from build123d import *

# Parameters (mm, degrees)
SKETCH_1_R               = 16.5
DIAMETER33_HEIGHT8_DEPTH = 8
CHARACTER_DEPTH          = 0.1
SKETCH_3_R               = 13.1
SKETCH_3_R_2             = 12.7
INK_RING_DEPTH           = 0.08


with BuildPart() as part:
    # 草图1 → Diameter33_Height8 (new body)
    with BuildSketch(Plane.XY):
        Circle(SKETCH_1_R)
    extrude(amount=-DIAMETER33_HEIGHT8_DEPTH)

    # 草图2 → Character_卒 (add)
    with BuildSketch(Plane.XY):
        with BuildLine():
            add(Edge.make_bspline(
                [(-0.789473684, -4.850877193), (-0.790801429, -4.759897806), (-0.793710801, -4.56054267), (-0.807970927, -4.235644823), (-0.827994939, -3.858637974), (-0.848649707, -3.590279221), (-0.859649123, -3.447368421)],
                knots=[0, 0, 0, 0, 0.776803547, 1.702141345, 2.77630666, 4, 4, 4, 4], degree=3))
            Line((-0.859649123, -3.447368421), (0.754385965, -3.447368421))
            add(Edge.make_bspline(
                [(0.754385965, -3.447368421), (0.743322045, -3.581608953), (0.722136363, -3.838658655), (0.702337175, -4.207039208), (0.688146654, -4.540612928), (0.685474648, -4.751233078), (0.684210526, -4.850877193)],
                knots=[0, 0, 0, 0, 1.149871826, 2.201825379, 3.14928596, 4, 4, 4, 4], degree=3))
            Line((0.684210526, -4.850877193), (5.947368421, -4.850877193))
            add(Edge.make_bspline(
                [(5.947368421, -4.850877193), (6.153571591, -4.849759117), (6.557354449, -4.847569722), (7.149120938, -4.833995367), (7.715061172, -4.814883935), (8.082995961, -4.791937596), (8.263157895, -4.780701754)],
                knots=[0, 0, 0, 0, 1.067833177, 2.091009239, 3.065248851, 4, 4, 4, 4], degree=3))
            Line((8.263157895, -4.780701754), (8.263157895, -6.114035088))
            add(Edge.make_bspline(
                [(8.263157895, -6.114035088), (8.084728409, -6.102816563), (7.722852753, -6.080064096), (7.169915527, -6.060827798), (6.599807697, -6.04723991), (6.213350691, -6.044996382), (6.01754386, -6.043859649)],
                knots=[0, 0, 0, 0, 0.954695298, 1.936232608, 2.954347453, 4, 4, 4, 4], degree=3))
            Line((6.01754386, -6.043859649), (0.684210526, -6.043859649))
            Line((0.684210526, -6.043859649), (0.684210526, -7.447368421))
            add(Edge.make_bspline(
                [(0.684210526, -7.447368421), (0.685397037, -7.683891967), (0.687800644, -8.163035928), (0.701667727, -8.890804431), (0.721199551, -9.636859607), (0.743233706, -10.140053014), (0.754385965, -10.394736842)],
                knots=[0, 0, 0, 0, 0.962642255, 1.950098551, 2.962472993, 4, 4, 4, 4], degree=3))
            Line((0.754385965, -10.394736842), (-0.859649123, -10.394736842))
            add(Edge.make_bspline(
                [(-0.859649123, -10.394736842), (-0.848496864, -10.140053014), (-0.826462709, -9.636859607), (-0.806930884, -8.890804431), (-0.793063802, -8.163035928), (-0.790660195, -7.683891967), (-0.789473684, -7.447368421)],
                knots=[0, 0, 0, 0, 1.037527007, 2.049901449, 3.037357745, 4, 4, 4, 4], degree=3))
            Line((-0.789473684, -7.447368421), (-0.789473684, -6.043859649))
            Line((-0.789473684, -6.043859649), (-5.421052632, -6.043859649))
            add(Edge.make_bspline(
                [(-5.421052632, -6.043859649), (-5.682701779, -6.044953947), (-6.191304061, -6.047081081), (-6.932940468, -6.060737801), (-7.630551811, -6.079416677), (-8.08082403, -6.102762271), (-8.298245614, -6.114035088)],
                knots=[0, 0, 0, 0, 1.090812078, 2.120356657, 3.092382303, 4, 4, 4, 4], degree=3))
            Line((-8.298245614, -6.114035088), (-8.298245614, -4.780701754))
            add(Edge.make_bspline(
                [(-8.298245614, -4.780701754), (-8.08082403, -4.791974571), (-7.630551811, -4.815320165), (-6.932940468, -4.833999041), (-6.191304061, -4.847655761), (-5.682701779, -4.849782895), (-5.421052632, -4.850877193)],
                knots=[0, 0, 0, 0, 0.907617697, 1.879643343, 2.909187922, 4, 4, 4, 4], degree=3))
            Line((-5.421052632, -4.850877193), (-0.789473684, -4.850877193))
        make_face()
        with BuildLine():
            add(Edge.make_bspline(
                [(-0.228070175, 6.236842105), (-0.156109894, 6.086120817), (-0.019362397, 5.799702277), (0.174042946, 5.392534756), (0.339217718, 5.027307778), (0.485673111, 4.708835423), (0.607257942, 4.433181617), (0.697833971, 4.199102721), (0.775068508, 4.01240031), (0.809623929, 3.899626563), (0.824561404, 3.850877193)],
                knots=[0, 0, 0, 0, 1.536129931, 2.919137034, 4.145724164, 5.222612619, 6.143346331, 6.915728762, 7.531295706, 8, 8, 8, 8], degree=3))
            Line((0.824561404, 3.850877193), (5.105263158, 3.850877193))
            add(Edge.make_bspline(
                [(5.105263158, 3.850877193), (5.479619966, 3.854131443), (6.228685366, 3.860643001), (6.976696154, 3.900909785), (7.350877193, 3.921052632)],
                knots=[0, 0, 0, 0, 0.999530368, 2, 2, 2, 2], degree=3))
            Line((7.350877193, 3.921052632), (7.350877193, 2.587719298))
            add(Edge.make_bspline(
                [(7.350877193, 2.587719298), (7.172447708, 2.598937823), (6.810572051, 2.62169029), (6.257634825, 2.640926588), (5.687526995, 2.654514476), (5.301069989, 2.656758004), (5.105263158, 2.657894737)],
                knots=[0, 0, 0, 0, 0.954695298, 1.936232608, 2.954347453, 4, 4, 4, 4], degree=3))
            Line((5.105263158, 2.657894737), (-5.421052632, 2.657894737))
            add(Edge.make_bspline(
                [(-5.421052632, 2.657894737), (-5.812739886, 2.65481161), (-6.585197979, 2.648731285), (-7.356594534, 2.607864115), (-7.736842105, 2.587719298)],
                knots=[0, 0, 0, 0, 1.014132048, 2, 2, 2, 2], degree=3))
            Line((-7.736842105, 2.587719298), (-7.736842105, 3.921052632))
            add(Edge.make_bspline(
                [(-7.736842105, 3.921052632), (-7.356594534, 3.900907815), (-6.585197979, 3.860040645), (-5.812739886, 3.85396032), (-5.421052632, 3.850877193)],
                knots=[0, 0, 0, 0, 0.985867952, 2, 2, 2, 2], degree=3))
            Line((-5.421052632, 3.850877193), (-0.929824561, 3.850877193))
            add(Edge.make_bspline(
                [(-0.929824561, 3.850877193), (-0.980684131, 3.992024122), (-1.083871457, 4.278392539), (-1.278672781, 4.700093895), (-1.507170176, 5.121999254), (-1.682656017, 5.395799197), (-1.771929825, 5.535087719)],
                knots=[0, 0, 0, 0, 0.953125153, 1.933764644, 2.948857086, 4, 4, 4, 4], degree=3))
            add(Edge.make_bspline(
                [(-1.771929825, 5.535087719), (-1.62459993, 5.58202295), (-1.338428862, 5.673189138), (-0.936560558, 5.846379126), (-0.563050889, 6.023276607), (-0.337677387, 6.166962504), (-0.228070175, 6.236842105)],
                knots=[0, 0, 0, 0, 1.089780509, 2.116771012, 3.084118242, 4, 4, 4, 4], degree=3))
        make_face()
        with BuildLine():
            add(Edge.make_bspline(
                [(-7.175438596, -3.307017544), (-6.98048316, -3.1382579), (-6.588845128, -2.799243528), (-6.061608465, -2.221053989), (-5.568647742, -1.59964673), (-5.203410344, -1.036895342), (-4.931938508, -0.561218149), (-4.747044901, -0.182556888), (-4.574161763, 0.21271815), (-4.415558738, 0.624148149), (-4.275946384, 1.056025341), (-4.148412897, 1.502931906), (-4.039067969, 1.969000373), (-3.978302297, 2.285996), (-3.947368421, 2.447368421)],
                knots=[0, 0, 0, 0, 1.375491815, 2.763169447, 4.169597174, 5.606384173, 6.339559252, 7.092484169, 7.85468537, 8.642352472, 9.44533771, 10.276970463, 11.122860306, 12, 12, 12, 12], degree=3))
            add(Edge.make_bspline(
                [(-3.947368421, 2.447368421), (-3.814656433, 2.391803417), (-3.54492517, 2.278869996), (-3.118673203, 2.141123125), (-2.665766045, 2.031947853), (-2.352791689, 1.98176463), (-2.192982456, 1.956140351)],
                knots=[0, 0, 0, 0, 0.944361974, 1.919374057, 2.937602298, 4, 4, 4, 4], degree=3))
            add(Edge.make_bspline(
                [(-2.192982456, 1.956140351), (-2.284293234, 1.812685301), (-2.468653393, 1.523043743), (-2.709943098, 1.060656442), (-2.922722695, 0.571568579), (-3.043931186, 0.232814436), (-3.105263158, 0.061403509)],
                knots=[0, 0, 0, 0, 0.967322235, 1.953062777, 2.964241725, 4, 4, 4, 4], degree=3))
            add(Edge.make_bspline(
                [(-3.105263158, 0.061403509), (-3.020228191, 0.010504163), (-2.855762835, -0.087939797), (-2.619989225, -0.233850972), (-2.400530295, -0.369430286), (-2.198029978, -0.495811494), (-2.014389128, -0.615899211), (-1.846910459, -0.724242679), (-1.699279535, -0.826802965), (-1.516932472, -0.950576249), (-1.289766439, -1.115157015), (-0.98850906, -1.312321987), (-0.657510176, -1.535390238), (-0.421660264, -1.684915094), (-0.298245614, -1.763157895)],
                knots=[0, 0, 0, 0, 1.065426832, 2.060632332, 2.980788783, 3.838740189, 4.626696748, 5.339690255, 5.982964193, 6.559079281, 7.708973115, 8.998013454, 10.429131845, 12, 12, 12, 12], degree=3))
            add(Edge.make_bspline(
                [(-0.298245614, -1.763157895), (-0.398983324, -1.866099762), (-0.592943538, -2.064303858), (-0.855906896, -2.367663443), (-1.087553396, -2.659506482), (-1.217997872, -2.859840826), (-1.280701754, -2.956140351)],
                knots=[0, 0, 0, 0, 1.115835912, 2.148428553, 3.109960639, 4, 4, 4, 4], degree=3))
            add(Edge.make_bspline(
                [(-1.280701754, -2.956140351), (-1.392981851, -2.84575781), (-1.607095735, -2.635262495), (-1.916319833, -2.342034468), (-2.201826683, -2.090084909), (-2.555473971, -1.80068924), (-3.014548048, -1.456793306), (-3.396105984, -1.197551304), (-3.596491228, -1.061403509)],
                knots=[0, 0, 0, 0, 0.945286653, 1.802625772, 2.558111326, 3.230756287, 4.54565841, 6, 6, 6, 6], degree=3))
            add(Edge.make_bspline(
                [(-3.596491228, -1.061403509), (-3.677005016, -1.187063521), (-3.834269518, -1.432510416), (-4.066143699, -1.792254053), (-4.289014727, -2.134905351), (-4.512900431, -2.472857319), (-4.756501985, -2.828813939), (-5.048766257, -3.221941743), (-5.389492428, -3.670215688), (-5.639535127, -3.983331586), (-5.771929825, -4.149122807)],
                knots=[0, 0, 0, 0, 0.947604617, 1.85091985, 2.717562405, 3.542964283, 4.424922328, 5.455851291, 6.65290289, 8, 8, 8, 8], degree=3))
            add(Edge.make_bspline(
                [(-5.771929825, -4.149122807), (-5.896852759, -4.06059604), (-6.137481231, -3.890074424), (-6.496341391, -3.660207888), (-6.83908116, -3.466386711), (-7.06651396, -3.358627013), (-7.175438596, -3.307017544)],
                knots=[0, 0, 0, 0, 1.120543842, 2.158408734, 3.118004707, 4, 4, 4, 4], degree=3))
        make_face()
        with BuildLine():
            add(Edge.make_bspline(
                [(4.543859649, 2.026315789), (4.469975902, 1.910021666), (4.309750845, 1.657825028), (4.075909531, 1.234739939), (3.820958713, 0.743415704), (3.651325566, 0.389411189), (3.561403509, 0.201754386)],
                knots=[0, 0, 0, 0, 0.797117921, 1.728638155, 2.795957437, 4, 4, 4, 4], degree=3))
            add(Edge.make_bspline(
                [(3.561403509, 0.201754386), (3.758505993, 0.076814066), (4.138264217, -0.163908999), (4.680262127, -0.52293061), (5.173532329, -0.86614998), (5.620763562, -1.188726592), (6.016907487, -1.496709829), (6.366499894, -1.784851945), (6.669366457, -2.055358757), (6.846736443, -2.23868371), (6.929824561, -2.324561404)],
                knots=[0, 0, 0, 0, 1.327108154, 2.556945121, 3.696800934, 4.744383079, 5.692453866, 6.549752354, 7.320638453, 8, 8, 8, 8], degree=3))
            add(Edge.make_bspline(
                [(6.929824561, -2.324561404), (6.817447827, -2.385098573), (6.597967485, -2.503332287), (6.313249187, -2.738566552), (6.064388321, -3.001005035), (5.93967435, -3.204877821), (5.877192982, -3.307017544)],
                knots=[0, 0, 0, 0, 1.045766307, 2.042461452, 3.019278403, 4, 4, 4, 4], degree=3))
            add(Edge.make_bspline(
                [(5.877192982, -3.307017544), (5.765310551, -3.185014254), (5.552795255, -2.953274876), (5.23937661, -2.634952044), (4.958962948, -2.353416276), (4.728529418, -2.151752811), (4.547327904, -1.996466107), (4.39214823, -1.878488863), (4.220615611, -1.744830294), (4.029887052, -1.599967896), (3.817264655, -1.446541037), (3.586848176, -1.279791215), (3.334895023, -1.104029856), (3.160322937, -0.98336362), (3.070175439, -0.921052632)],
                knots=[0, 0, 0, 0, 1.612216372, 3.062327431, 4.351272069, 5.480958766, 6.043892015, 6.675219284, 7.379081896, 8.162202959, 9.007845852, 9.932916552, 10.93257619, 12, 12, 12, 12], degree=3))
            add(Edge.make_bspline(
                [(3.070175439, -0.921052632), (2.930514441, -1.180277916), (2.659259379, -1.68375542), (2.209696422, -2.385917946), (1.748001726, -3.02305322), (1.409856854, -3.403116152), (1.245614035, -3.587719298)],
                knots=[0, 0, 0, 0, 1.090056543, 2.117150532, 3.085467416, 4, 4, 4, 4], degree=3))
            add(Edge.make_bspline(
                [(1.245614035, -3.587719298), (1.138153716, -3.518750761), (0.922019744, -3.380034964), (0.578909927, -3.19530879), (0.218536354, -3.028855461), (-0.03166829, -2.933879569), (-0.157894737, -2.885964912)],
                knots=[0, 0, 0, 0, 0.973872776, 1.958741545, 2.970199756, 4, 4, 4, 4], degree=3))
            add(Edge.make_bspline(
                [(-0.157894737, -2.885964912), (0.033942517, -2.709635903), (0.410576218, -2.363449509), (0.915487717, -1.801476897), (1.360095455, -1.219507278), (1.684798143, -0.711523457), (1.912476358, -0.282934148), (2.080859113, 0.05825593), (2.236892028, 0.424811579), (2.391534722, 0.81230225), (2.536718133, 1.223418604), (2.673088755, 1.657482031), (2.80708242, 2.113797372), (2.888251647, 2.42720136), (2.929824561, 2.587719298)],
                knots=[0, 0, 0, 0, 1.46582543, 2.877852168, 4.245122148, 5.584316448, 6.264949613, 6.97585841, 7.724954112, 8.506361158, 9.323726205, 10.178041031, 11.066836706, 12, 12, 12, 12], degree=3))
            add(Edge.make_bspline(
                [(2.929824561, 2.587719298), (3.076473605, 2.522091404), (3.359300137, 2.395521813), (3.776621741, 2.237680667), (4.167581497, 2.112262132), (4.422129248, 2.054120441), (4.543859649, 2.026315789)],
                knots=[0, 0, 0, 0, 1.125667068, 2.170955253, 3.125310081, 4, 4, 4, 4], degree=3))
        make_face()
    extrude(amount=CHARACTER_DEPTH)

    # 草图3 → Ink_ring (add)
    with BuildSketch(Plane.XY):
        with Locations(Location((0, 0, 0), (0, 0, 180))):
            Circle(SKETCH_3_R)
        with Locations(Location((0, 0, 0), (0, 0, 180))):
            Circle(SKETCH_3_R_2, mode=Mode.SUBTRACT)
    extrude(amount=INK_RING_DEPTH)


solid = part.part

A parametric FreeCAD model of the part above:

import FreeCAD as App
import Part
import Sketcher

V = App.Vector
Q = App.Units.Quantity

doc = App.newDocument("Part")
body = doc.addObject("PartDesign::Body", "Body")

sketch1 = body.newObject("Sketcher::SketchObject", "Sketch")
sketch1.AttachmentSupport = (doc.getObject("XY_Plane"), [""])
sketch1.MapMode = "FlatFace"
sketch1.addGeometry(Part.Circle(V(0, 0, 0), V(0, 0, 1), 16), False)
sketch1.addConstraint([
    Sketcher.Constraint("Coincident", 0, 3, -1, 1),
    Sketcher.Constraint("Diameter", 0, Q("33 mm")),
])
pad1 = body.newObject("PartDesign::Pad", "Pad")
pad1.Profile = sketch1
pad1.Length = 8
pad1.Reversed = True

sketch2 = body.newObject("Sketcher::SketchObject", "Sketch001")
sketch2.AttachmentSupport = (doc.getObject("XY_Plane"), [""])
sketch2.MapMode = "FlatFace"
sketch2.addGeometry([
    Part.BSplineCurve([V(-0.789474, -4.850877, 0), V(-0.790801, -4.759898, 0), V(-0.793711, -4.560543, 0), V(-0.807971, -4.235645, 0), V(-0.827995, -3.858638, 0), V(-0.84865, -3.590279, 0), V(-0.859649, -3.447368, 0)], [4, 1, 1, 1, 4], [0, 0.776803547, 1.702141345, 2.77630666, 4], False, 3, [1, 1, 1, 1, 1, 1, 1], False),
    Part.LineSegment(V(-0.789474, -4.850877, 0), V(-5.421053, -4.850877, 0)),
    Part.BSplineCurve([V(-8.298246, -4.780702, 0), V(-8.080824, -4.791975, 0), V(-7.630552, -4.81532, 0), V(-6.93294, -4.833999, 0), V(-6.191304, -4.847656, 0), V(-5.682702, -4.849783, 0), V(-5.421053, -4.850877, 0)], [4, 1, 1, 1, 4], [0, 0.907617697, 1.879643343, 2.909187922, 4], False, 3, [1, 1, 1, 1, 1, 1, 1], False),
    Part.LineSegment(V(-8.298246, -4.780702, 0), V(-8.298246, -6.114035, 0)),
    Part.BSplineCurve([V(-5.421053, -6.04386, 0), V(-5.682702, -6.044954, 0), V(-6.191304, -6.047081, 0), V(-6.93294, -6.060738, 0), V(-7.630552, -6.079417, 0), V(-8.080824, -6.102762, 0), V(-8.298246, -6.114035, 0)], [4, 1, 1, 1, 4], [0, 1.090812078, 2.120356657, 3.092382303, 4], False, 3, [1, 1, 1, 1, 1, 1, 1], False),
    Part.LineSegment(V(-5.421053, -6.04386, 0), V(-0.789474, -6.04386, 0)),
    Part.LineSegment(V(-0.789474, -6.04386, 0), V(-0.789474, -7.447368, 0)),
    Part.BSplineCurve([V(-0.859649, -10.394737, 0), V(-0.848497, -10.140053, 0), V(-0.826463, -9.63686, 0), V(-0.806931, -8.890804, 0), V(-0.793064, -8.163036, 0), V(-0.79066, -7.683892, 0), V(-0.789474, -7.447368, 0)], [4, 1, 1, 1, 4], [0, 1.037527007, 2.049901449, 3.037357745, 4], False, 3, [1, 1, 1, 1, 1, 1, 1], False),
    Part.LineSegment(V(-0.859649, -10.394737, 0), V(0.754386, -10.394737, 0)),
    Part.BSplineCurve([V(0.684211, -7.447368, 0), V(0.685397, -7.683892, 0), V(0.687801, -8.163036, 0), V(0.701668, -8.890804, 0), V(0.7212, -9.63686, 0), V(0.743234, -10.140053, 0), V(0.754386, -10.394737, 0)], [4, 1, 1, 1, 4], [0, 0.962642255, 1.950098551, 2.962472993, 4], False, 3, [1, 1, 1, 1, 1, 1, 1], False),
    Part.LineSegment(V(0.684211, -7.447368, 0), V(0.684211, -6.04386, 0)),
    Part.LineSegment(V(0.684211, -6.04386, 0), V(6.017544, -6.04386, 0)),
    Part.BSplineCurve([V(8.263158, -6.114035, 0), V(8.084728, -6.102817, 0), V(7.722853, -6.080064, 0), V(7.169916, -6.060828, 0), V(6.599808, -6.04724, 0), V(6.213351, -6.044996, 0), V(6.017544, -6.04386, 0)], [4, 1, 1, 1, 4], [0, 0.954695298, 1.936232608, 2.954347453, 4], False, 3, [1, 1, 1, 1, 1, 1, 1], False),
    Part.LineSegment(V(8.263158, -6.114035, 0), V(8.263158, -4.780702, 0)),
    Part.BSplineCurve([V(5.947368, -4.850877, 0), V(6.153572, -4.849759, 0), V(6.557354, -4.84757, 0), V(7.149121, -4.833995, 0), V(7.715061, -4.814884, 0), V(8.082996, -4.791938, 0), V(8.263158, -4.780702, 0)], [4, 1, 1, 1, 4], [0, 1.067833177, 2.091009239, 3.065248851, 4], False, 3, [1, 1, 1, 1, 1, 1, 1], False),
    Part.LineSegment(V(5.947368, -4.850877, 0), V(0.684211, -4.850877, 0)),
    Part.BSplineCurve([V(0.754386, -3.447368, 0), V(0.743322, -3.581609, 0), V(0.722136, -3.838659, 0), V(0.702337, -4.207039, 0), V(0.688147, -4.540613, 0), V(0.685475, -4.751233, 0), V(0.684211, -4.850877, 0)], [4, 1, 1, 1, 4], [0, 1.149871826, 2.201825379, 3.14928596, 4], False, 3, [1, 1, 1, 1, 1, 1, 1], False),
    Part.LineSegment(V(0.754386, -3.447368, 0), V(-0.859649, -3.447368, 0)),
    Part.BSplineCurve([V(-0.22807, 6.236842, 0), V(-0.15611, 6.086121, 0), V(-0.019362, 5.799702, 0), V(0.174043, 5.392535, 0), V(0.339218, 5.027308, 0), V(0.485673, 4.708835, 0), V(0.607258, 4.433182, 0), V(0.697834, 4.199103, 0), V(0.775069, 4.0124, 0), V(0.809624, 3.899627, 0), V(0.824561, 3.850877, 0)], [4, 1, 1, 1, 1, 1, 1, 1, 4], [0, 1.536129931, 2.919137034, 4.145724164, 5.222612619, 6.143346331, 6.915728762, 7.531295706, 8], False, 3, [1, 1, 1, 1, 1, 1, 1, 1, 1, 1, 1], False),
    Part.BSplineCurve([V(-1.77193, 5.535088, 0), V(-1.6246, 5.582023, 0), V(-1.338429, 5.673189, 0), V(-0.936561, 5.846379, 0), V(-0.563051, 6.023277, 0), V(-0.337677, 6.166963, 0), V(-0.22807, 6.236842, 0)], [4, 1, 1, 1, 4], [0, 1.089780509, 2.116771012, 3.084118242, 4], False, 3, [1, 1, 1, 1, 1, 1, 1], False),
    Part.BSplineCurve([V(-0.929825, 3.850877, 0), V(-0.980684, 3.992024, 0), V(-1.083871, 4.278393, 0), V(-1.278673, 4.700094, 0), V(-1.50717, 5.121999, 0), V(-1.682656, 5.395799, 0), V(-1.77193, 5.535088, 0)], [4, 1, 1, 1, 4], [0, 0.953125153, 1.933764644, 2.948857086, 4], False, 3, [1, 1, 1, 1, 1, 1, 1], False),
    Part.LineSegment(V(-0.929825, 3.850877, 0), V(-5.421053, 3.850877, 0)),
    Part.BSplineCurve([V(-7.736842, 3.921053, 0), V(-7.356595, 3.900908, 0), V(-6.585198, 3.860041, 0), V(-5.81274, 3.85396, 0), V(-5.421053, 3.850877, 0)], [4, 1, 4], [0, 0.985867952, 2], False, 3, [1, 1, 1, 1, 1], False),
    Part.LineSegment(V(-7.736842, 3.921053, 0), V(-7.736842, 2.587719, 0)),
    Part.BSplineCurve([V(-5.421053, 2.657895, 0), V(-5.81274, 2.654812, 0), V(-6.585198, 2.648731, 0), V(-7.356595, 2.607864, 0), V(-7.736842, 2.587719, 0)], [4, 1, 4], [0, 1.014132048, 2], False, 3, [1, 1, 1, 1, 1], False),
    Part.LineSegment(V(-5.421053, 2.657895, 0), V(5.105263, 2.657895, 0)),
    Part.BSplineCurve([V(7.350877, 2.587719, 0), V(7.172448, 2.598938, 0), V(6.810572, 2.62169, 0), V(6.257635, 2.640927, 0), V(5.687527, 2.654514, 0), V(5.30107, 2.656758, 0), V(5.105263, 2.657895, 0)], [4, 1, 1, 1, 4], [0, 0.954695298, 1.936232608, 2.954347453, 4], False, 3, [1, 1, 1, 1, 1, 1, 1], False),
    Part.LineSegment(V(7.350877, 2.587719, 0), V(7.350877, 3.921053, 0)),
    Part.BSplineCurve([V(5.105263, 3.850877, 0), V(5.47962, 3.854131, 0), V(6.228685, 3.860643, 0), V(6.976696, 3.90091, 0), V(7.350877, 3.921053, 0)], [4, 1, 4], [0, 0.999530368, 2], False, 3, [1, 1, 1, 1, 1], False),
    Part.LineSegment(V(5.105263, 3.850877, 0), V(0.824561, 3.850877, 0)),
    Part.BSplineCurve([V(-7.175439, -3.307018, 0), V(-6.980483, -3.138258, 0), V(-6.588845, -2.799244, 0), V(-6.061608, -2.221054, 0), V(-5.568648, -1.599647, 0), V(-5.20341, -1.036895, 0), V(-4.931939, -0.561218, 0), V(-4.747045, -0.182557, 0), V(-4.574162, 0.212718, 0), V(-4.415559, 0.624148, 0), V(-4.275946, 1.056025, 0), V(-4.148413, 1.502932, 0), V(-4.039068, 1.969, 0), V(-3.978302, 2.285996, 0), V(-3.947368, 2.447368, 0)], [4, 1, 1, 1, 1, 1, 1, 1, 1, 1, 1, 1, 4], [0, 1.375491815, 2.763169447, 4.169597174, 5.606384173, 6.339559252, 7.092484169, 7.85468537, 8.642352472, 9.44533771, 10.276970463, 11.122860306, 12], False, 3, [1, 1, 1, 1, 1, 1, 1, 1, 1, 1, 1, 1, 1, 1, 1], False),
    Part.BSplineCurve([V(-5.77193, -4.149123, 0), V(-5.896853, -4.060596, 0), V(-6.137481, -3.890074, 0), V(-6.496341, -3.660208, 0), V(-6.839081, -3.466387, 0), V(-7.066514, -3.358627, 0), V(-7.175439, -3.307018, 0)], [4, 1, 1, 1, 4], [0, 1.120543842, 2.158408734, 3.118004707, 4], False, 3, [1, 1, 1, 1, 1, 1, 1], False),
    Part.BSplineCurve([V(-3.596491, -1.061404, 0), V(-3.677005, -1.187064, 0), V(-3.83427, -1.43251, 0), V(-4.066144, -1.792254, 0), V(-4.289015, -2.134905, 0), V(-4.5129, -2.472857, 0), V(-4.756502, -2.828814, 0), V(-5.048766, -3.221942, 0), V(-5.389492, -3.670216, 0), V(-5.639535, -3.983332, 0), V(-5.77193, -4.149123, 0)], [4, 1, 1, 1, 1, 1, 1, 1, 4], [0, 0.947604617, 1.85091985, 2.717562405, 3.542964283, 4.424922328, 5.455851291, 6.65290289, 8], False, 3, [1, 1, 1, 1, 1, 1, 1, 1, 1, 1, 1], False),
    Part.BSplineCurve([V(-1.280702, -2.95614, 0), V(-1.392982, -2.845758, 0), V(-1.607096, -2.635262, 0), V(-1.91632, -2.342034, 0), V(-2.201827, -2.090085, 0), V(-2.555474, -1.800689, 0), V(-3.014548, -1.456793, 0), V(-3.396106, -1.197551, 0), V(-3.596491, -1.061404, 0)], [4, 1, 1, 1, 1, 1, 4], [0, 0.945286653, 1.802625772, 2.558111326, 3.230756287, 4.54565841, 6], False, 3, [1, 1, 1, 1, 1, 1, 1, 1, 1], False),
    Part.BSplineCurve([V(-0.298246, -1.763158, 0), V(-0.398983, -1.8661, 0), V(-0.592944, -2.064304, 0), V(-0.855907, -2.367663, 0), V(-1.087553, -2.659506, 0), V(-1.217998, -2.859841, 0), V(-1.280702, -2.95614, 0)], [4, 1, 1, 1, 4], [0, 1.115835912, 2.148428553, 3.109960639, 4], False, 3, [1, 1, 1, 1, 1, 1, 1], False),
    Part.BSplineCurve([V(-3.105263, 0.061404, 0), V(-3.020228, 0.010504, 0), V(-2.855763, -0.08794, 0), V(-2.619989, -0.233851, 0), V(-2.40053, -0.36943, 0), V(-2.19803, -0.495811, 0), V(-2.014389, -0.615899, 0), V(-1.84691, -0.724243, 0), V(-1.69928, -0.826803, 0), V(-1.516932, -0.950576, 0), V(-1.289766, -1.115157, 0), V(-0.988509, -1.312322, 0), V(-0.65751, -1.53539, 0), V(-0.42166, -1.684915, 0), V(-0.298246, -1.763158, 0)], [4, 1, 1, 1, 1, 1, 1, 1, 1, 1, 1, 1, 4], [0, 1.065426832, 2.060632332, 2.980788783, 3.838740189, 4.626696748, 5.339690255, 5.982964193, 6.559079281, 7.708973115, 8.998013454, 10.429131845, 12], False, 3, [1, 1, 1, 1, 1, 1, 1, 1, 1, 1, 1, 1, 1, 1, 1], False),
    Part.BSplineCurve([V(-2.192982, 1.95614, 0), V(-2.284293, 1.812685, 0), V(-2.468653, 1.523044, 0), V(-2.709943, 1.060656, 0), V(-2.922723, 0.571569, 0), V(-3.043931, 0.232814, 0), V(-3.105263, 0.061404, 0)], [4, 1, 1, 1, 4], [0, 0.967322235, 1.953062777, 2.964241725, 4], False, 3, [1, 1, 1, 1, 1, 1, 1], False),
    Part.BSplineCurve([V(-3.947368, 2.447368, 0), V(-3.814656, 2.391803, 0), V(-3.544925, 2.27887, 0), V(-3.118673, 2.141123, 0), V(-2.665766, 2.031948, 0), V(-2.352792, 1.981765, 0), V(-2.192982, 1.95614, 0)], [4, 1, 1, 1, 4], [0, 0.944361974, 1.919374057, 2.937602298, 4], False, 3, [1, 1, 1, 1, 1, 1, 1], False),
    Part.BSplineCurve([V(4.54386, 2.026316, 0), V(4.469976, 1.910022, 0), V(4.309751, 1.657825, 0), V(4.07591, 1.23474, 0), V(3.820959, 0.743416, 0), V(3.651326, 0.389411, 0), V(3.561404, 0.201754, 0)], [4, 1, 1, 1, 4], [0, 0.797117921, 1.728638155, 2.795957437, 4], False, 3, [1, 1, 1, 1, 1, 1, 1], False),
    Part.BSplineCurve([V(2.929825, 2.587719, 0), V(3.076474, 2.522091, 0), V(3.3593, 2.395522, 0), V(3.776622, 2.237681, 0), V(4.167581, 2.112262, 0), V(4.422129, 2.05412, 0), V(4.54386, 2.026316, 0)], [4, 1, 1, 1, 4], [0, 1.125667068, 2.170955253, 3.125310081, 4], False, 3, [1, 1, 1, 1, 1, 1, 1], False),
    Part.BSplineCurve([V(-0.157895, -2.885965, 0), V(0.033943, -2.709636, 0), V(0.410576, -2.36345, 0), V(0.915488, -1.801477, 0), V(1.360095, -1.219507, 0), V(1.684798, -0.711523, 0), V(1.912476, -0.282934, 0), V(2.080859, 0.058256, 0), V(2.236892, 0.424812, 0), V(2.391535, 0.812302, 0), V(2.536718, 1.223419, 0), V(2.673089, 1.657482, 0), V(2.807082, 2.113797, 0), V(2.888252, 2.427201, 0), V(2.929825, 2.587719, 0)], [4, 1, 1, 1, 1, 1, 1, 1, 1, 1, 1, 1, 4], [0, 1.46582543, 2.877852168, 4.245122148, 5.584316448, 6.264949613, 6.97585841, 7.724954112, 8.506361158, 9.323726205, 10.178041031, 11.066836706, 12], False, 3, [1, 1, 1, 1, 1, 1, 1, 1, 1, 1, 1, 1, 1, 1, 1], False),
    Part.BSplineCurve([V(1.245614, -3.587719, 0), V(1.138154, -3.518751, 0), V(0.92202, -3.380035, 0), V(0.57891, -3.195309, 0), V(0.218536, -3.028855, 0), V(-0.031668, -2.93388, 0), V(-0.157895, -2.885965, 0)], [4, 1, 1, 1, 4], [0, 0.973872776, 1.958741545, 2.970199756, 4], False, 3, [1, 1, 1, 1, 1, 1, 1], False),
    Part.BSplineCurve([V(3.070175, -0.921053, 0), V(2.930514, -1.180278, 0), V(2.659259, -1.683755, 0), V(2.209696, -2.385918, 0), V(1.748002, -3.023053, 0), V(1.409857, -3.403116, 0), V(1.245614, -3.587719, 0)], [4, 1, 1, 1, 4], [0, 1.090056543, 2.117150532, 3.085467416, 4], False, 3, [1, 1, 1, 1, 1, 1, 1], False),
    Part.BSplineCurve([V(5.877193, -3.307018, 0), V(5.765311, -3.185014, 0), V(5.552795, -2.953275, 0), V(5.239377, -2.634952, 0), V(4.958963, -2.353416, 0), V(4.728529, -2.151753, 0), V(4.547328, -1.996466, 0), V(4.392148, -1.878489, 0), V(4.220616, -1.74483, 0), V(4.029887, -1.599968, 0), V(3.817265, -1.446541, 0), V(3.586848, -1.279791, 0), V(3.334895, -1.10403, 0), V(3.160323, -0.983364, 0), V(3.070175, -0.921053, 0)], [4, 1, 1, 1, 1, 1, 1, 1, 1, 1, 1, 1, 4], [0, 1.612216372, 3.062327431, 4.351272069, 5.480958766, 6.043892015, 6.675219284, 7.379081896, 8.162202959, 9.007845852, 9.932916552, 10.93257619, 12], False, 3, [1, 1, 1, 1, 1, 1, 1, 1, 1, 1, 1, 1, 1, 1, 1], False),
    Part.BSplineCurve([V(6.929825, -2.324561, 0), V(6.817448, -2.385099, 0), V(6.597967, -2.503332, 0), V(6.313249, -2.738567, 0), V(6.064388, -3.001005, 0), V(5.939674, -3.204878, 0), V(5.877193, -3.307018, 0)], [4, 1, 1, 1, 4], [0, 1.045766307, 2.042461452, 3.019278403, 4], False, 3, [1, 1, 1, 1, 1, 1, 1], False),
    Part.BSplineCurve([V(3.561404, 0.201754, 0), V(3.758506, 0.076814, 0), V(4.138264, -0.163909, 0), V(4.680262, -0.522931, 0), V(5.173532, -0.86615, 0), V(5.620764, -1.188727, 0), V(6.016907, -1.49671, 0), V(6.3665, -1.784852, 0), V(6.669366, -2.055359, 0), V(6.846736, -2.238684, 0), V(6.929825, -2.324561, 0)], [4, 1, 1, 1, 1, 1, 1, 1, 4], [0, 1.327108154, 2.556945121, 3.696800934, 4.744383079, 5.692453866, 6.549752354, 7.320638453, 8], False, 3, [1, 1, 1, 1, 1, 1, 1, 1, 1, 1, 1], False),
], False)
sketch2.addConstraint([
    Sketcher.Constraint("Block", 0),
    Sketcher.Constraint("Block", 2),
    Sketcher.Constraint("Block", 4),
    Sketcher.Constraint("Block", 7),
    Sketcher.Constraint("Block", 9),
    Sketcher.Constraint("Block", 12),
    Sketcher.Constraint("Block", 14),
    Sketcher.Constraint("Block", 16),
    Sketcher.Constraint("Block", 18),
    Sketcher.Constraint("Block", 19),
    Sketcher.Constraint("Block", 20),
    Sketcher.Constraint("Block", 22),
    Sketcher.Constraint("Block", 24),
    Sketcher.Constraint("Block", 26),
    Sketcher.Constraint("Block", 28),
    Sketcher.Constraint("Block", 30),
    Sketcher.Constraint("Block", 31),
    Sketcher.Constraint("Block", 32),
    Sketcher.Constraint("Block", 33),
    Sketcher.Constraint("Block", 34),
    Sketcher.Constraint("Block", 35),
    Sketcher.Constraint("Block", 36),
    Sketcher.Constraint("Block", 37),
    Sketcher.Constraint("Block", 38),
    Sketcher.Constraint("Block", 39),
    Sketcher.Constraint("Block", 40),
    Sketcher.Constraint("Block", 41),
    Sketcher.Constraint("Block", 42),
    Sketcher.Constraint("Block", 43),
    Sketcher.Constraint("Block", 44),
    Sketcher.Constraint("Block", 45),
    Sketcher.Constraint("Coincident", 0, 1, 1, 1),
    Sketcher.Constraint("Coincident", 1, 2, 2, 2),
    Sketcher.Constraint("Coincident", 2, 1, 3, 1),
    Sketcher.Constraint("Coincident", 3, 2, 4, 2),
    Sketcher.Constraint("Coincident", 4, 1, 5, 1),
    Sketcher.Constraint("Coincident", 5, 2, 6, 1),
    Sketcher.Constraint("Coincident", 6, 2, 7, 2),
    Sketcher.Constraint("Coincident", 7, 1, 8, 1),
    Sketcher.Constraint("Coincident", 8, 2, 9, 2),
    Sketcher.Constraint("Coincident", 9, 1, 10, 1),
    Sketcher.Constraint("Coincident", 10, 2, 11, 1),
    Sketcher.Constraint("Coincident", 11, 2, 12, 2),
    Sketcher.Constraint("Coincident", 12, 1, 13, 1),
    Sketcher.Constraint("Coincident", 13, 2, 14, 2),
    Sketcher.Constraint("Coincident", 14, 1, 15, 1),
    Sketcher.Constraint("Coincident", 15, 2, 16, 2),
    Sketcher.Constraint("Coincident", 16, 1, 17, 1),
    Sketcher.Constraint("Coincident", 17, 2, 0, 2),
    Sketcher.Constraint("Coincident", 20, 1, 21, 1),
    Sketcher.Constraint("Coincident", 21, 2, 22, 2),
    Sketcher.Constraint("Coincident", 22, 1, 23, 1),
    Sketcher.Constraint("Coincident", 23, 2, 24, 2),
    Sketcher.Constraint("Coincident", 24, 1, 25, 1),
    Sketcher.Constraint("Coincident", 25, 2, 26, 2),
    Sketcher.Constraint("Coincident", 26, 1, 27, 1),
    Sketcher.Constraint("Coincident", 27, 2, 28, 2),
    Sketcher.Constraint("Coincident", 28, 1, 29, 1),
    Sketcher.Constraint("Coincident", 29, 2, 18, 2),
    Sketcher.Constraint("Horizontal", 5),
    Sketcher.Constraint("Vertical", 6),
    Sketcher.Constraint("Vertical", 10),
    Sketcher.Constraint("Horizontal", 11),
])
pad2 = body.newObject("PartDesign::Pad", "Pad001")
pad2.Profile = sketch2
pad2.Length = 0.1

sketch3 = body.newObject("Sketcher::SketchObject", "Sketch002")
sketch3.AttachmentSupport = (doc.getObject("XY_Plane"), [""])
sketch3.MapMode = "FlatFace"
sketch3.addGeometry([
    Part.Circle(V(0, 0, 0), V(0, 0, 1), 13),
    Part.Circle(V(0, 0, 0), V(0, 0, 1), 13),
], False)
sketch3.addConstraint([
    Sketcher.Constraint("Coincident", 0, 3, -1, 1),
    Sketcher.Constraint("Coincident", 1, 3, -1, 1),
    Sketcher.Constraint("Diameter", 0, Q("26.2 mm")),
    Sketcher.Constraint("Diameter", 1, Q("25.4 mm")),
])
pad3 = body.newObject("PartDesign::Pad", "Pad002")
pad3.Profile = sketch3
pad3.Length = 0.08

doc.recompute()
